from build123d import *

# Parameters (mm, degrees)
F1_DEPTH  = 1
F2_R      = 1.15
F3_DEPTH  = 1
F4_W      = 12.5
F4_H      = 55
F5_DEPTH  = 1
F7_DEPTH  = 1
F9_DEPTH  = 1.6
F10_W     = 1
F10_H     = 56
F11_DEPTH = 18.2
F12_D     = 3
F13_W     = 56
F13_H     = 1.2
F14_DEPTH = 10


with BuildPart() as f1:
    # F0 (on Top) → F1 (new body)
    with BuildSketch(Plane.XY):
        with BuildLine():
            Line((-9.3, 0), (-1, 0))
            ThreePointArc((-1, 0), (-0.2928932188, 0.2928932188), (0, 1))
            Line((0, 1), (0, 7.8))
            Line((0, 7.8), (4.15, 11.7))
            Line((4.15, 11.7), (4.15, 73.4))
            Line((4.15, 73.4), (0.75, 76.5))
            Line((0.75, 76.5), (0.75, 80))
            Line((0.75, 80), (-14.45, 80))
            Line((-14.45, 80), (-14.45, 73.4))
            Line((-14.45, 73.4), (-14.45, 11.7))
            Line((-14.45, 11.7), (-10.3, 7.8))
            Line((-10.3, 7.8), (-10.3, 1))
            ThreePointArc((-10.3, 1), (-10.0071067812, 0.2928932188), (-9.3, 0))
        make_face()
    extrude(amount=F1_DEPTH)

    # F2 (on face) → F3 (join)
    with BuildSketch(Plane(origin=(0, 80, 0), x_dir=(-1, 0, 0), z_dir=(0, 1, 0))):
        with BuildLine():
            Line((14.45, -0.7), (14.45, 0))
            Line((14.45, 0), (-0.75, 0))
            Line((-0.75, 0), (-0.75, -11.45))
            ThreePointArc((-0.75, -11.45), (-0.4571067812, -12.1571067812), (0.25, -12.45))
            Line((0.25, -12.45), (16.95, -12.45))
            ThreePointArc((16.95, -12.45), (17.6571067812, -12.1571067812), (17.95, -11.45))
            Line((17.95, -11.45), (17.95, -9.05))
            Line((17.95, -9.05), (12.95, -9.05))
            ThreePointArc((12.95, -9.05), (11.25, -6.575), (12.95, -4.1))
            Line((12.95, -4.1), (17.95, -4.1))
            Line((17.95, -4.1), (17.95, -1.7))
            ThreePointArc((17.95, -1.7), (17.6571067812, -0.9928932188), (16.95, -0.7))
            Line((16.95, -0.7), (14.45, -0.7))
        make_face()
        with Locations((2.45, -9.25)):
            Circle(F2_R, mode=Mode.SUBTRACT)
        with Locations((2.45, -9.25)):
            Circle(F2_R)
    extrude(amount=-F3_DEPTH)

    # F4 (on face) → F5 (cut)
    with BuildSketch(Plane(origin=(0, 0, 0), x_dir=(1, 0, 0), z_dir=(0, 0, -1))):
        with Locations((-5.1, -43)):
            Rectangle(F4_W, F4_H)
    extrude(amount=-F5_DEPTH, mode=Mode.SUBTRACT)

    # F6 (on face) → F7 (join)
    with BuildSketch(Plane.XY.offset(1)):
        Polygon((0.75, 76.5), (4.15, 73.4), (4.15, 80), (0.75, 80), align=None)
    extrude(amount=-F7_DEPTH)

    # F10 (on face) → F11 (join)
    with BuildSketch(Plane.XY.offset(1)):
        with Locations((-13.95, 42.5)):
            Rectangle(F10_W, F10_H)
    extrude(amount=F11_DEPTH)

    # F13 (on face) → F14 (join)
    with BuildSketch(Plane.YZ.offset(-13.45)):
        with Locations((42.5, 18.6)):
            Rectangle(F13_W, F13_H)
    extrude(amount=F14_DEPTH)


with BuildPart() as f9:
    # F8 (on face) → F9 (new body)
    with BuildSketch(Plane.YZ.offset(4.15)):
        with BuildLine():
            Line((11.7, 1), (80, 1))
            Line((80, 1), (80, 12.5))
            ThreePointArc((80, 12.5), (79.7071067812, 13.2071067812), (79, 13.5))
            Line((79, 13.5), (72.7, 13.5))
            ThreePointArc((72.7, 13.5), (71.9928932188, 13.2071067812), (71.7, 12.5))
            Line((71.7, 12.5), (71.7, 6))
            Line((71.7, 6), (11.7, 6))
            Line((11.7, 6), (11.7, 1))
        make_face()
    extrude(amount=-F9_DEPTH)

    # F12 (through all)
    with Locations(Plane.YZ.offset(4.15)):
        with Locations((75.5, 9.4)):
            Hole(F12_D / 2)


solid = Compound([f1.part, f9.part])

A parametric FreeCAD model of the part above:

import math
import FreeCAD as App
import Part
import Sketcher

V = App.Vector


def add_polygon(sketch, points):
    """Adds a closed chain of lines whose ends are joined by coincident constraints."""
    first, n = sketch.GeometryCount, len(points)
    for a, b in zip(points, points[1:] + points[:1]):
        sketch.addGeometry(Part.LineSegment(App.Vector(*a, 0), App.Vector(*b, 0)), False)
    for i in range(n):
        sketch.addConstraint(Sketcher.Constraint("Coincident", first + i, 2, first + (i + 1) % n, 1))

doc = App.newDocument("Part")
body = doc.addObject("PartDesign::Body", "Body")

sketch1 = body.newObject("Sketcher::SketchObject", "Sketch")
sketch1.AttachmentSupport = (doc.getObject("XY_Plane"), [""])
sketch1.MapMode = "FlatFace"
sketch1.addGeometry(Part.LineSegment(V(-9.3, 0, 0), V(-1, 0, 0)), False)
sketch1.addGeometry(Part.ArcOfCircle(Part.Circle(V(-1, 1, 0), V(0, 0, 1), 1), math.radians(-90), math.radians(0)), False)
sketch1.addGeometry(Part.LineSegment(V(0, 1, 0), V(0, 7.8, 0)), False)
sketch1.addGeometry(Part.LineSegment(V(0, 7.8, 0), V(4.2, 11.7, 0)), False)
sketch1.addGeometry(Part.LineSegment(V(4.2, 11.7, 0), V(4.2, 73.4, 0)), False)
sketch1.addGeometry(Part.LineSegment(V(4.2, 73.4, 0), V(0.8, 76.5, 0)), False)
sketch1.addGeometry(Part.LineSegment(V(0.8, 76.5, 0), V(0.8, 80, 0)), False)
sketch1.addGeometry(Part.LineSegment(V(0.8, 80, 0), V(-14.4, 80, 0)), False)
sketch1.addGeometry(Part.LineSegment(V(-14.4, 80, 0), V(-14.4, 11.7, 0)), False)
sketch1.addGeometry(Part.LineSegment(V(-14.4, 11.7, 0), V(-10.3, 7.8, 0)), False)
sketch1.addGeometry(Part.LineSegment(V(-10.3, 7.8, 0), V(-10.3, 1, 0)), False)
sketch1.addGeometry(Part.ArcOfCircle(Part.Circle(V(-9.3, 1, 0), V(0, 0, 1), 1), math.radians(180), math.radians(270)), False)
sketch1.addConstraint(Sketcher.Constraint("Tangent", 0, 2, 1, 1))
sketch1.addConstraint(Sketcher.Constraint("Tangent", 1, 2, 2, 1))
sketch1.addConstraint(Sketcher.Constraint("Coincident", 2, 2, 3, 1))
sketch1.addConstraint(Sketcher.Constraint("Coincident", 3, 2, 4, 1))
sketch1.addConstraint(Sketcher.Constraint("Coincident", 4, 2, 5, 1))
sketch1.addConstraint(Sketcher.Constraint("Coincident", 5, 2, 6, 1))
sketch1.addConstraint(Sketcher.Constraint("Coincident", 6, 2, 7, 1))
sketch1.addConstraint(Sketcher.Constraint("Coincident", 7, 2, 8, 1))
sketch1.addConstraint(Sketcher.Constraint("Coincident", 8, 2, 9, 1))
sketch1.addConstraint(Sketcher.Constraint("Coincident", 9, 2, 10, 1))
sketch1.addConstraint(Sketcher.Constraint("Tangent", 10, 2, 11, 1))
sketch1.addConstraint(Sketcher.Constraint("Tangent", 11, 2, 0, 1))
sketch1.addConstraint(Sketcher.Constraint("Horizontal", 0))
sketch1.addConstraint(Sketcher.Constraint("Vertical", 2))
sketch1.addConstraint(Sketcher.Constraint("Vertical", 4))
sketch1.addConstraint(Sketcher.Constraint("Vertical", 6))
sketch1.addConstraint(Sketcher.Constraint("Horizontal", 7))
sketch1.addConstraint(Sketcher.Constraint("Vertical", 8))
sketch1.addConstraint(Sketcher.Constraint("Vertical", 10))
sketch1.addConstraint(Sketcher.Constraint("Equal", 1, 11))
sketch1.addConstraint(Sketcher.Constraint("PointOnObject", 0, 2, -1))
sketch1.addConstraint(Sketcher.Constraint("PointOnObject", 1, 2, -2))
sketch1.addConstraint(Sketcher.Constraint("Horizontal", 3, 2, 8, 2))
sketch1.addConstraint(Sketcher.Constraint("Horizontal", 2, 2, 9, 2))
sketch1.addConstraint(Sketcher.Constraint("Equal", 3, 9))
sketch1.addConstraint(Sketcher.Constraint("Radius", 1, 1.0))
sketch1.addConstraint(Sketcher.Constraint("DistanceX", 0, 1, 0, 2, 8.3))
sketch1.addConstraint(Sketcher.Constraint("DistanceX", 7, 2, 7, 1, 15.2))
sketch1.addConstraint(Sketcher.Constraint("DistanceY", 2, 1, 2, 2, 6.8))
sketch1.addConstraint(Sketcher.Constraint("DistanceY", 4, 1, 4, 2, 61.7))
sketch1.addConstraint(Sketcher.Constraint("DistanceY", 6, 1, 6, 2, 3.5))
sketch1.addConstraint(Sketcher.Constraint("DistanceY", 8, 2, 8, 1, 68.3))
sketch1.addConstraint(Sketcher.Constraint("DistanceY", -1, 1, 6, 2, 80.0))
sketch1.addConstraint(Sketcher.Constraint("DistanceX", 5, 2, 4, 2, 3.4))
pad1 = body.newObject("PartDesign::Pad", "Pad")
pad1.Profile = sketch1
pad1.Length = 1

sketch2 = body.newObject("Sketcher::SketchObject", "Sketch001")
sketch2.AttachmentSupport = (doc.getObject("XZ_Plane"), [""])
sketch2.MapMode = "FlatFace"
sketch2.AttachmentOffset = App.Placement(V(0, 0, -80), App.Rotation())
sketch2.addGeometry(Part.LineSegment(V(-14.4, -0.7, 0), V(-14.4, 0, 0)), False)
sketch2.addGeometry(Part.LineSegment(V(-14.4, 0, 0), V(0.8, 0, 0)), False)
sketch2.addGeometry(Part.LineSegment(V(0.8, 0, 0), V(0.8, -11.4, 0)), False)
sketch2.addGeometry(Part.ArcOfCircle(Part.Circle(V(-0.2, -11.4, 0), V(0, 0, 1), 1), math.radians(-90), math.radians(0)), False)
sketch2.addGeometry(Part.LineSegment(V(-0.2, -12.4, 0), V(-16.9, -12.4, 0)), False)
sketch2.addGeometry(Part.ArcOfCircle(Part.Circle(V(-16.9, -11.4, 0), V(0, 0, 1), 1), math.radians(180), math.radians(270)), False)
sketch2.addGeometry(Part.LineSegment(V(-17.9, -11.4, 0), V(-17.9, -9.1, 0)), False)
sketch2.addGeometry(Part.LineSegment(V(-17.9, -9.1, 0), V(-12.9, -9.1, 0)), False)
sketch2.addGeometry(Part.ArcOfCircle(Part.Circle(V(-13.9, -6.6, 0), V(0, 0, 1), 2.7), math.radians(-69), math.radians(69)), False)
sketch2.addGeometry(Part.LineSegment(V(-12.9, -4.1, 0), V(-17.9, -4.1, 0)), False)
sketch2.addGeometry(Part.LineSegment(V(-17.9, -4.1, 0), V(-17.9, -1.7, 0)), False)
sketch2.addGeometry(Part.ArcOfCircle(Part.Circle(V(-16.9, -1.7, 0), V(0, 0, 1), 1), math.radians(90), math.radians(180)), False)
sketch2.addGeometry(Part.LineSegment(V(-16.9, -0.7, 0), V(-14.4, -0.7, 0)), False)
sketch2.addConstraint(Sketcher.Constraint("Coincident", 0, 2, 1, 1))
sketch2.addConstraint(Sketcher.Constraint("Coincident", 1, 2, 2, 1))
sketch2.addConstraint(Sketcher.Constraint("Tangent", 2, 2, 3, 2))
sketch2.addConstraint(Sketcher.Constraint("Tangent", 3, 1, 4, 1))
sketch2.addConstraint(Sketcher.Constraint("Tangent", 4, 2, 5, 2))
sketch2.addConstraint(Sketcher.Constraint("Tangent", 5, 1, 6, 1))
sketch2.addConstraint(Sketcher.Constraint("Coincident", 6, 2, 7, 1))
sketch2.addConstraint(Sketcher.Constraint("Coincident", 7, 2, 8, 1))
sketch2.addConstraint(Sketcher.Constraint("Coincident", 8, 2, 9, 1))
sketch2.addConstraint(Sketcher.Constraint("Coincident", 9, 2, 10, 1))
sketch2.addConstraint(Sketcher.Constraint("Tangent", 10, 2, 11, 2))
sketch2.addConstraint(Sketcher.Constraint("Tangent", 11, 1, 12, 1))
sketch2.addConstraint(Sketcher.Constraint("Coincident", 12, 2, 0, 1))
sketch2.addConstraint(Sketcher.Constraint("Vertical", 0))
sketch2.addConstraint(Sketcher.Constraint("Horizontal", 1))
sketch2.addConstraint(Sketcher.Constraint("Vertical", 2))
sketch2.addConstraint(Sketcher.Constraint("Horizontal", 4))
sketch2.addConstraint(Sketcher.Constraint("Vertical", 6))
sketch2.addConstraint(Sketcher.Constraint("Horizontal", 7))
sketch2.addConstraint(Sketcher.Constraint("Horizontal", 9))
sketch2.addConstraint(Sketcher.Constraint("Vertical", 10))
sketch2.addConstraint(Sketcher.Constraint("Horizontal", 12))
sketch2.addConstraint(Sketcher.Constraint("Equal", 3, 5))
sketch2.addConstraint(Sketcher.Constraint("Equal", 5, 11))
sketch2.addConstraint(Sketcher.Constraint("PointOnObject", 0, 2, -1))
sketch2.addConstraint(Sketcher.Constraint("Vertical", 5, 3, 11, 3))
sketch2.addConstraint(Sketcher.Constraint("Vertical", 7, 2, 8, 2))
sketch2.addConstraint(Sketcher.Constraint("Equal", 6, 10))
sketch2.addConstraint(Sketcher.Constraint("Radius", 3, 1.0))
sketch2.addConstraint(Sketcher.Constraint("DistanceX", 7, 1, 7, 2, 5.0))
sketch2.addConstraint(Sketcher.Constraint("DistanceX", 1, 1, 1, 2, 15.2))
sketch2.addConstraint(Sketcher.Constraint("DistanceX", 4, 2, 4, 1, 16.7))
sketch2.addConstraint(Sketcher.Constraint("DistanceY", 0, 1, 0, 2, 0.7))
sketch2.addConstraint(Sketcher.Constraint("DistanceY", 6, 1, 6, 2, 2.4))
sketch2.addConstraint(Sketcher.Constraint("DistanceY", 2, 2, 2, 1, 11.45))
sketch2.addConstraint(Sketcher.Constraint("DistanceX", 3, 3, -1, 1, 0.25))
sketch2.addConstraint(Sketcher.Constraint("Radius", 8, 2.651654))
pad2 = body.newObject("PartDesign::Pad", "Pad001")
pad2.Profile = sketch2
pad2.Length = 1

sketch3 = body.newObject("Sketcher::SketchObject", "Sketch002")
sketch3.AttachmentSupport = (doc.getObject("XY_Plane"), [""])
sketch3.MapMode = "FlatFace"
add_polygon(sketch3, [(-11, 16), (-11, 70), (1, 70), (1, 16)])
sketch3.addConstraint(Sketcher.Constraint("Vertical", 0))
sketch3.addConstraint(Sketcher.Constraint("Horizontal", 1))
sketch3.addConstraint(Sketcher.Constraint("Vertical", 2))
sketch3.addConstraint(Sketcher.Constraint("Horizontal", 3))
sketch3.addConstraint(Sketcher.Constraint("DistanceY", 0, 1, 0, 2, 55.0))
sketch3.addConstraint(Sketcher.Constraint("DistanceX", 1, 1, 1, 2, 12.5))
sketch3.addConstraint(Sketcher.Constraint("DistanceY", -1, 1, 0, 2, 70.5))
sketch3.addConstraint(Sketcher.Constraint("DistanceX", 0, 2, -1, 1, 11.35))
pocket1 = body.newObject("PartDesign::Pocket", "Pocket")
pocket1.Profile = sketch3
pocket1.Length = 1
pocket1.Reversed = True

sketch4 = body.newObject("Sketcher::SketchObject", "Sketch003")
sketch4.AttachmentSupport = (doc.getObject("XY_Plane"), [""])
sketch4.MapMode = "FlatFace"
sketch4.AttachmentOffset = App.Placement(V(0, 0, 1), App.Rotation())
add_polygon(sketch4, [(0.8, 76.5), (4.2, 73.4), (4.2, 80), (0.8, 80)])
sketch4.addConstraint(Sketcher.Constraint("Vertical", 1))
sketch4.addConstraint(Sketcher.Constraint("Horizontal", 2))
sketch4.addConstraint(Sketcher.Constraint("Vertical", 3))
sketch4.addConstraint(Sketcher.Constraint("DistanceX", 2, 2, 2, 1, 3.4))
sketch4.addConstraint(Sketcher.Constraint("DistanceY", 1, 1, 1, 2, 6.6))
sketch4.addConstraint(Sketcher.Constraint("DistanceY", 3, 2, 3, 1, 3.5))
sketch4.addConstraint(Sketcher.Constraint("DistanceY", -1, 1, 1, 2, 80.0))
sketch4.addConstraint(Sketcher.Constraint("DistanceX", -1, 1, 0, 2, 4.15))
pad3 = body.newObject("PartDesign::Pad", "Pad002")
pad3.Profile = sketch4
pad3.Length = 1
pad3.Reversed = True

sketch5 = body.newObject("Sketcher::SketchObject", "Sketch004")
sketch5.AttachmentSupport = (doc.getObject("XY_Plane"), [""])
sketch5.MapMode = "FlatFace"
sketch5.AttachmentOffset = App.Placement(V(0, 0, 1), App.Rotation())
add_polygon(sketch5, [(-14.4, 70.5), (-14.4, 14.5), (-13.4, 14.5), (-13.4, 70.5)])
sketch5.addConstraint(Sketcher.Constraint("Vertical", 0))
sketch5.addConstraint(Sketcher.Constraint("Horizontal", 1))
sketch5.addConstraint(Sketcher.Constraint("Vertical", 2))
sketch5.addConstraint(Sketcher.Constraint("Horizontal", 3))
sketch5.addConstraint(Sketcher.Constraint("DistanceX", 1, 1, 1, 2, 1.0))
sketch5.addConstraint(Sketcher.Constraint("DistanceY", 0, 2, 0, 1, 56.0))
sketch5.addConstraint(Sketcher.Constraint("DistanceY", -1, 1, 0, 2, 14.5))
sketch5.addConstraint(Sketcher.Constraint("DistanceX", 0, 2, -1, 1, 14.45))
pad4 = body.newObject("PartDesign::Pad", "Pad003")
pad4.Profile = sketch5
pad4.Length = 18.2

sketch6 = body.newObject("Sketcher::SketchObject", "Sketch005")
sketch6.AttachmentSupport = (doc.getObject("YZ_Plane"), [""])
sketch6.MapMode = "FlatFace"
sketch6.AttachmentOffset = App.Placement(V(0, 0, -13.45), App.Rotation())
add_polygon(sketch6, [(14.5, 19.2), (14.5, 18), (70.5, 18), (70.5, 19.2)])
sketch6.addConstraint(Sketcher.Constraint("Vertical", 0))
sketch6.addConstraint(Sketcher.Constraint("Horizontal", 1))
sketch6.addConstraint(Sketcher.Constraint("Vertical", 2))
sketch6.addConstraint(Sketcher.Constraint("Horizontal", 3))
sketch6.addConstraint(Sketcher.Constraint("DistanceX", 1, 1, 1, 2, 56.0))
sketch6.addConstraint(Sketcher.Constraint("DistanceY", 0, 2, 0, 1, 1.2))
sketch6.addConstraint(Sketcher.Constraint("DistanceY", -1, 1, 0, 2, 18.0))
sketch6.addConstraint(Sketcher.Constraint("DistanceX", -1, 1, 0, 2, 14.5))
pad5 = body.newObject("PartDesign::Pad", "Pad004")
pad5.Profile = sketch6
pad5.Length = 10
body2 = doc.addObject("PartDesign::Body", "Body001")

sketch7 = body2.newObject("Sketcher::SketchObject", "Sketch006")
sketch7.AttachmentSupport = (doc.getObject("YZ_Plane001"), [""])
sketch7.MapMode = "FlatFace"
sketch7.AttachmentOffset = App.Placement(V(0, 0, 4.15), App.Rotation())
sketch7.addGeometry(Part.LineSegment(V(11.7, 1, 0), V(80, 1, 0)), False)
sketch7.addGeometry(Part.LineSegment(V(80, 1, 0), V(80, 12.5, 0)), False)
sketch7.addGeometry(Part.ArcOfCircle(Part.Circle(V(79, 12.5, 0), V(0, 0, 1), 1), math.radians(0), math.radians(90)), False)
sketch7.addGeometry(Part.LineSegment(V(79, 13.5, 0), V(72.7, 13.5, 0)), False)
sketch7.addGeometry(Part.ArcOfCircle(Part.Circle(V(72.7, 12.5, 0), V(0, 0, 1), 1), math.radians(90), math.radians(180)), False)
sketch7.addGeometry(Part.LineSegment(V(71.7, 12.5, 0), V(71.7, 6, 0)), False)
sketch7.addGeometry(Part.LineSegment(V(71.7, 6, 0), V(11.7, 6, 0)), False)
sketch7.addGeometry(Part.LineSegment(V(11.7, 6, 0), V(11.7, 1, 0)), False)
sketch7.addConstraint(Sketcher.Constraint("Coincident", 0, 2, 1, 1))
sketch7.addConstraint(Sketcher.Constraint("Tangent", 1, 2, 2, 1))
sketch7.addConstraint(Sketcher.Constraint("Tangent", 2, 2, 3, 1))
sketch7.addConstraint(Sketcher.Constraint("Tangent", 3, 2, 4, 1))
sketch7.addConstraint(Sketcher.Constraint("Tangent", 4, 2, 5, 1))
sketch7.addConstraint(Sketcher.Constraint("Coincident", 5, 2, 6, 1))
sketch7.addConstraint(Sketcher.Constraint("Coincident", 6, 2, 7, 1))
sketch7.addConstraint(Sketcher.Constraint("Coincident", 7, 2, 0, 1))
sketch7.addConstraint(Sketcher.Constraint("Horizontal", 0))
sketch7.addConstraint(Sketcher.Constraint("Vertical", 1))
sketch7.addConstraint(Sketcher.Constraint("Horizontal", 3))
sketch7.addConstraint(Sketcher.Constraint("Vertical", 5))
sketch7.addConstraint(Sketcher.Constraint("Horizontal", 6))
sketch7.addConstraint(Sketcher.Constraint("Vertical", 7))
sketch7.addConstraint(Sketcher.Constraint("Equal", 2, 4))
sketch7.addConstraint(Sketcher.Constraint("Radius", 2, 1.0))
sketch7.addConstraint(Sketcher.Constraint("DistanceX", 6, 2, 6, 1, 60.0))
sketch7.addConstraint(Sketcher.Constraint("DistanceY", 7, 2, 7, 1, 5.0))
sketch7.addConstraint(Sketcher.Constraint("DistanceX", 0, 1, 0, 2, 68.3))
sketch7.addConstraint(Sketcher.Constraint("DistanceY", 1, 1, 1, 2, 11.5))
sketch7.addConstraint(Sketcher.Constraint("DistanceX", -1, 1, 2, 3, 79.0))
sketch7.addConstraint(Sketcher.Constraint("DistanceY", -1, 1, 0, 2, 1.0))
pad6 = body2.newObject("PartDesign::Pad", "Pad005")
pad6.Profile = sketch7
pad6.Length = 1.6
pad6.Reversed = True

sketch8 = body2.newObject("Sketcher::SketchObject", "Sketch007")
sketch8.AttachmentSupport = (doc.getObject("YZ_Plane001"), [""])
sketch8.MapMode = "FlatFace"
sketch8.AttachmentOffset = App.Placement(V(0, 0, 4.15), App.Rotation())
sketch8.addGeometry(Part.Circle(V(75.5, 9.4, 0), V(0, 0, 1), 1.5), False)
sketch8.addConstraint(Sketcher.Constraint("Diameter", 0, 3.0))
sketch8.addConstraint(Sketcher.Constraint("DistanceX", -1, 1, 0, 3, 75.5))
sketch8.addConstraint(Sketcher.Constraint("DistanceY", -1, 1, 0, 3, 9.4))
doc.recompute()
hole = body2.newObject("PartDesign::Hole", "Hole")
hole.Profile = sketch8
hole.ThreadType = "None"
hole.Diameter = 3
hole.DepthType = "ThroughAll"

doc.recompute()
